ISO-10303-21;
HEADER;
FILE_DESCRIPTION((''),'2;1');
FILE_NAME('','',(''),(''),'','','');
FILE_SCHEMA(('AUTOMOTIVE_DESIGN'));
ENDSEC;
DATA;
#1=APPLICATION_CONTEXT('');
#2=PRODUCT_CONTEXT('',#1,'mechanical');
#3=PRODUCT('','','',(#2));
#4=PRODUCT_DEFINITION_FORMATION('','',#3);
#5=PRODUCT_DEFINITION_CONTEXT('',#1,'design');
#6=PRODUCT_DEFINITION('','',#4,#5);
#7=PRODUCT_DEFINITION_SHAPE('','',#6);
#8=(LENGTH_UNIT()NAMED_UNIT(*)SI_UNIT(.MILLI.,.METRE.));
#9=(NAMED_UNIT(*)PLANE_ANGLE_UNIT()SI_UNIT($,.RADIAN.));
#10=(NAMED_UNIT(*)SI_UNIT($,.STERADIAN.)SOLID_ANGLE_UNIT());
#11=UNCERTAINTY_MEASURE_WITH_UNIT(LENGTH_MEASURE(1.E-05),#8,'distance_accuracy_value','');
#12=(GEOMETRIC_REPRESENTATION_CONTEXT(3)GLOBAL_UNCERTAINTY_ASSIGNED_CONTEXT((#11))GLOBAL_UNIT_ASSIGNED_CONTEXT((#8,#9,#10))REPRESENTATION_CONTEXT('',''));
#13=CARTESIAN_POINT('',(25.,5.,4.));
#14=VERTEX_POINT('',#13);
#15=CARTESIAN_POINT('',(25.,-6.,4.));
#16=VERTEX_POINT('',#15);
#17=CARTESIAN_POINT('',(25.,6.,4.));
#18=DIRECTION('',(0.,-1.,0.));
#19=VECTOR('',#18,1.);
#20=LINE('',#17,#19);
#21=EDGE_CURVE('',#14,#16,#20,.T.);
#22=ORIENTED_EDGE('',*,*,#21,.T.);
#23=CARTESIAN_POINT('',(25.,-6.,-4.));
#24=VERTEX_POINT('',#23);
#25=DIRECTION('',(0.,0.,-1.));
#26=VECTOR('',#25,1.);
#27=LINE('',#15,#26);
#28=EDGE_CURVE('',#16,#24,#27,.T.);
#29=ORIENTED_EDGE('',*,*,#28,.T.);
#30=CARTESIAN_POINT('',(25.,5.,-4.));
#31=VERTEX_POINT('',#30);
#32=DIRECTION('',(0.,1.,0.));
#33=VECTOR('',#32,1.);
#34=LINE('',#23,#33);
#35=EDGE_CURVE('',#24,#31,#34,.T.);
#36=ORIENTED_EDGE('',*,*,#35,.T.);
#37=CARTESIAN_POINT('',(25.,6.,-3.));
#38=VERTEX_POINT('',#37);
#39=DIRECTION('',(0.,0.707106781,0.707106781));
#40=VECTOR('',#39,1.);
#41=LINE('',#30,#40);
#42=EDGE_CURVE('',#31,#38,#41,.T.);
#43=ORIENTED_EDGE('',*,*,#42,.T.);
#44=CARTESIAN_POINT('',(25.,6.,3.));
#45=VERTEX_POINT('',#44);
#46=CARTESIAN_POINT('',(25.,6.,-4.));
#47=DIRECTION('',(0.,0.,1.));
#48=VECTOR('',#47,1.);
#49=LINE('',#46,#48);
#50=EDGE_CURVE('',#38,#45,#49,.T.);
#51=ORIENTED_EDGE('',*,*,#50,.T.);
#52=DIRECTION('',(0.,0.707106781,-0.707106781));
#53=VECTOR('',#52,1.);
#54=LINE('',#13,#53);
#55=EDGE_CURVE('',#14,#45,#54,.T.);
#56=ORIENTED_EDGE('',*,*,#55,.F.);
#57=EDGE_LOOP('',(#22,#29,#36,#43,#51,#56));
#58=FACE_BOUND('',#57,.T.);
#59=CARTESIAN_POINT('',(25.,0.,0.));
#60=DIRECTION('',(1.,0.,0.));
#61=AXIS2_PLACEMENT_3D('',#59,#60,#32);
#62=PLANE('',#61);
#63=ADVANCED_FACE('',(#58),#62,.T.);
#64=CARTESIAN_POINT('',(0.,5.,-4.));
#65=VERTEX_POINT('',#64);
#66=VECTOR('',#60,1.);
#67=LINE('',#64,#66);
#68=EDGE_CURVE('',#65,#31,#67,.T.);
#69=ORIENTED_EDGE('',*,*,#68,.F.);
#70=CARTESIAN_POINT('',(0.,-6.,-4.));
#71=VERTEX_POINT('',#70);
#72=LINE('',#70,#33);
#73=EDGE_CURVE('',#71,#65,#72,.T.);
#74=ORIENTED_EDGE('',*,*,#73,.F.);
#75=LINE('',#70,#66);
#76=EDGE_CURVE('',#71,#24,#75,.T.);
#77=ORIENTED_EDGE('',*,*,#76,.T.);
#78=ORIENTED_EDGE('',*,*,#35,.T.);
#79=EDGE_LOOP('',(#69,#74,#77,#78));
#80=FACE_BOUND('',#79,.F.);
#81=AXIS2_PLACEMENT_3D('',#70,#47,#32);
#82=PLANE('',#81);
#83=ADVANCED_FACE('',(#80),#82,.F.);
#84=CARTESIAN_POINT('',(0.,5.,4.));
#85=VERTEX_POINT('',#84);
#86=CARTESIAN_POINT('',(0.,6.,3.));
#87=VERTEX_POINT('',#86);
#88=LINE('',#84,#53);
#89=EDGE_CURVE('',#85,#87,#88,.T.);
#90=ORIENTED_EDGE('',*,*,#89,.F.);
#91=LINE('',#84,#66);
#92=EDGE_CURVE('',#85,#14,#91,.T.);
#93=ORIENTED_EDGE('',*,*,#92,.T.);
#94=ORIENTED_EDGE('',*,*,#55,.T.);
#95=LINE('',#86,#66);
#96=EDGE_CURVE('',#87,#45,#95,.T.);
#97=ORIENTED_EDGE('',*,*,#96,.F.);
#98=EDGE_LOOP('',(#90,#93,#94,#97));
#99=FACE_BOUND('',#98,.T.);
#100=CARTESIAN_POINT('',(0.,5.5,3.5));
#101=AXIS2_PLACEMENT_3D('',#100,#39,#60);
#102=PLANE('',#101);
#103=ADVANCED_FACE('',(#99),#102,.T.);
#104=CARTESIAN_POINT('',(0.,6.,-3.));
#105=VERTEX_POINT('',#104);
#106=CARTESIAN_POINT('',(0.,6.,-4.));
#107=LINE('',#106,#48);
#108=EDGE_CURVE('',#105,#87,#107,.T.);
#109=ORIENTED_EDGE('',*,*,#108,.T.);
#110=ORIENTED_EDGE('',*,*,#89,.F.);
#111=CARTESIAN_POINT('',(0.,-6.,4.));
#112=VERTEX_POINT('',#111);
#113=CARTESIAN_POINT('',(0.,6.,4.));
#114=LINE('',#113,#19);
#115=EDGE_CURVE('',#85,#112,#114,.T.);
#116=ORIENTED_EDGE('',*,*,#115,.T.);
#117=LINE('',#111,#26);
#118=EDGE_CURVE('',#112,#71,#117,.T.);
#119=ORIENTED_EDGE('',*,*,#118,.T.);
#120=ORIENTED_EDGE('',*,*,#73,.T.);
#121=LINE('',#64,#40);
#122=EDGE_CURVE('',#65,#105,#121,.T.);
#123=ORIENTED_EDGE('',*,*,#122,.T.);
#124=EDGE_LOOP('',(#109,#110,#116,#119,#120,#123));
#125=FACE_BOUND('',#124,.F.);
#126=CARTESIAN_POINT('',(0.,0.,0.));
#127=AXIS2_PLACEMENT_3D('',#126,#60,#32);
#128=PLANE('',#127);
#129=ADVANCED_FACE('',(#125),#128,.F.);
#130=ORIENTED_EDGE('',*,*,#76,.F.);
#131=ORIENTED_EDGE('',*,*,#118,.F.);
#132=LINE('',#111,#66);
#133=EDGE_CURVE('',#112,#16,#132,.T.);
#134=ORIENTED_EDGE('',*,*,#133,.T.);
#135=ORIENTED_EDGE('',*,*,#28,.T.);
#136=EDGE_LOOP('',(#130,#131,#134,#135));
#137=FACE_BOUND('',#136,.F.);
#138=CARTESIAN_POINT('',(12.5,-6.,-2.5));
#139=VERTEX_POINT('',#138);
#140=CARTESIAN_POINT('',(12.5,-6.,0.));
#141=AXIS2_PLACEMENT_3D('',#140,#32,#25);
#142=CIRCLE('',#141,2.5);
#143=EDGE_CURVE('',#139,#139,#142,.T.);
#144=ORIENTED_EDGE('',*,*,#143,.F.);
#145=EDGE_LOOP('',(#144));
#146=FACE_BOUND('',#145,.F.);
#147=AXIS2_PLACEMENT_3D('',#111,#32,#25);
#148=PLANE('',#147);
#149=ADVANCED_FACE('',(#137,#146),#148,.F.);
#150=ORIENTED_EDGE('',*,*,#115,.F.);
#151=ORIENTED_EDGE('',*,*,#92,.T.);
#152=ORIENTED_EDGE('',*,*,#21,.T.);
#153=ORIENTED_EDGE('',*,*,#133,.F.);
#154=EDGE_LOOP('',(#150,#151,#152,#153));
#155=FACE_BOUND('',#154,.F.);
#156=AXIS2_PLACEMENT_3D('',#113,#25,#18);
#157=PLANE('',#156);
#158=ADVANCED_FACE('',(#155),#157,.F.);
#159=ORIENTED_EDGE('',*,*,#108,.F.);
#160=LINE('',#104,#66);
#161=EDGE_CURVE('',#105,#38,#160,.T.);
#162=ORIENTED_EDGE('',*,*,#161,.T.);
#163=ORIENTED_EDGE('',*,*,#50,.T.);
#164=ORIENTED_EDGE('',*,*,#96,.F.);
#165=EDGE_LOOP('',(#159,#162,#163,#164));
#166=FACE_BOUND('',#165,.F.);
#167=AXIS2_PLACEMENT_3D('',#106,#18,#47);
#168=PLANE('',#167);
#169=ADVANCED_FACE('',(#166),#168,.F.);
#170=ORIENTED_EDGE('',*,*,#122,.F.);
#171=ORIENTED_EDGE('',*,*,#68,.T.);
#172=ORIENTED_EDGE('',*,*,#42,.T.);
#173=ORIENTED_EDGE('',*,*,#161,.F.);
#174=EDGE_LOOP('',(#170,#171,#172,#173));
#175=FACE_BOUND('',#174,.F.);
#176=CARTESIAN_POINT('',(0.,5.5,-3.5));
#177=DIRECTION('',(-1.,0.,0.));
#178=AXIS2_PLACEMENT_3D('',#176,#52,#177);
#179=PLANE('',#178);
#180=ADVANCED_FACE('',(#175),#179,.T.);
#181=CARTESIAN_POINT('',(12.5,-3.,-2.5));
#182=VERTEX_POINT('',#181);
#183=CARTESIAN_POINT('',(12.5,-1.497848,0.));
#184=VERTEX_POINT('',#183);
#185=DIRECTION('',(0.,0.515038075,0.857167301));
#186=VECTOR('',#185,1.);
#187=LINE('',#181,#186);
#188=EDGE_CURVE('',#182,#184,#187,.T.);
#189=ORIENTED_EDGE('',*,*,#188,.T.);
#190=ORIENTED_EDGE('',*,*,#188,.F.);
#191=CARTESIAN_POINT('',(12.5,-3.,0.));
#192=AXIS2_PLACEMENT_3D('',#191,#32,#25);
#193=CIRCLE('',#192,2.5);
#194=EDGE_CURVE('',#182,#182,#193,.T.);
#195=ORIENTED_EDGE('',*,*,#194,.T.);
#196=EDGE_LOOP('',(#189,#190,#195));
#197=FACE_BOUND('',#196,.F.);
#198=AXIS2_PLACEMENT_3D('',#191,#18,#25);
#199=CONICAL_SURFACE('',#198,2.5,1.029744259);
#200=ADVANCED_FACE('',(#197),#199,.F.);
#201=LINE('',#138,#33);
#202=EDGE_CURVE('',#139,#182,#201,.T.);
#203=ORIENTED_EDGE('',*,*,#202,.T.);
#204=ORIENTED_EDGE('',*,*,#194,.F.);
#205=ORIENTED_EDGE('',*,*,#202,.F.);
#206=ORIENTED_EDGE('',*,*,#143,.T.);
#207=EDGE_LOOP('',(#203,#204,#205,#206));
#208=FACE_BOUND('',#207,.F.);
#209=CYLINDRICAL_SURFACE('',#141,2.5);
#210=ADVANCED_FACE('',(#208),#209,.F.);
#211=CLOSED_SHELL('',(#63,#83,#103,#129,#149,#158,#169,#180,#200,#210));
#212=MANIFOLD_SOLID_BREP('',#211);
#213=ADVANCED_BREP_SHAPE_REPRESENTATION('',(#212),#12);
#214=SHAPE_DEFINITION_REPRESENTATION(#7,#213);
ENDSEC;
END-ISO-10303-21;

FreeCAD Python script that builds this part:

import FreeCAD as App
import Part
import Sketcher
from FreeCAD import Vector


def edges_at(feature, points):
    """Names of the edges that pass closest to the given points."""
    edges = feature.Shape.Edges
    near = lambda p: min(range(len(edges)), key=lambda i: edges[i].distToShape(Part.Vertex(*p))[0])
    return sorted({f"Edge{near(p) + 1}" for p in points})

doc = App.newDocument("Part")
body = doc.addObject("PartDesign::Body", "Body")

# Sketch on YZ plane
sketch1 = body.newObject("Sketcher::SketchObject", "Sketch")
sketch1.AttachmentSupport = (doc.getObject("YZ_Plane"), [""])
sketch1.MapMode = "FlatFace"
sketch1.addGeometry([
    Part.LineSegment(Vector(-6, 4, 0), Vector(-6, -4, 0)),
    Part.LineSegment(Vector(-6, -4, 0), Vector(6, -4, 0)),
    Part.LineSegment(Vector(6, -4, 0), Vector(6, 4, 0)),
    Part.LineSegment(Vector(6, 4, 0), Vector(-6, 4, 0)),
], False)
sketch1.addConstraint([
    Sketcher.Constraint("Coincident", 0, 2, 1, 1),
    Sketcher.Constraint("Coincident", 1, 2, 2, 1),
    Sketcher.Constraint("Coincident", 2, 2, 3, 1),
    Sketcher.Constraint("Coincident", 3, 2, 0, 1),
    Sketcher.Constraint("Vertical", 0),
    Sketcher.Constraint("Horizontal", 1),
    Sketcher.Constraint("Vertical", 2),
    Sketcher.Constraint("Horizontal", 3),
    Sketcher.Constraint("Symmetric", 0, 2, 2, 2, -1, 1),
    Sketcher.Constraint("DistanceX", 1, 1, 1, 2, 12.0),
    Sketcher.Constraint("DistanceY", 0, 2, 0, 1, 8.0),
])
pad1 = body.newObject("PartDesign::Pad", "Pad")
pad1.Profile = sketch1
pad1.Length = 25

# Sketch on XZ plane
sketch2 = body.newObject("Sketcher::SketchObject", "Sketch001")
sketch2.AttachmentSupport = (doc.getObject("XZ_Plane"), [""])
sketch2.MapMode = "FlatFace"
sketch2.AttachmentOffset = App.Placement(Vector(0, 0, 6), App.Rotation())
sketch2.addGeometry(Part.Circle(Vector(12.5, 0, 0), Vector(0, 0, 1), 2.5), False)
sketch2.addConstraint([
    Sketcher.Constraint("PointOnObject", 0, 3, -1),
    Sketcher.Constraint("Diameter", 0, 5.0),
    Sketcher.Constraint("DistanceX", -1, 1, 0, 3, 12.5),
])
doc.recompute()
hole = body.newObject("PartDesign::Hole", "Hole")
hole.Profile = sketch2
hole.ThreadType = "None"
hole.Diameter = 5
hole.DepthType = "Dimension"
hole.Depth = 3
hole.DrillPoint = "Angled"
hole.DrillPointAngle = 118
doc.recompute()

chamfer = body.newObject("PartDesign::Chamfer", "Chamfer")
chamfer.Base = (hole, edges_at(hole, [(12.5, 6, -4), (12.5, 6, 4)]))
chamfer.Size = 1

doc.recompute()
